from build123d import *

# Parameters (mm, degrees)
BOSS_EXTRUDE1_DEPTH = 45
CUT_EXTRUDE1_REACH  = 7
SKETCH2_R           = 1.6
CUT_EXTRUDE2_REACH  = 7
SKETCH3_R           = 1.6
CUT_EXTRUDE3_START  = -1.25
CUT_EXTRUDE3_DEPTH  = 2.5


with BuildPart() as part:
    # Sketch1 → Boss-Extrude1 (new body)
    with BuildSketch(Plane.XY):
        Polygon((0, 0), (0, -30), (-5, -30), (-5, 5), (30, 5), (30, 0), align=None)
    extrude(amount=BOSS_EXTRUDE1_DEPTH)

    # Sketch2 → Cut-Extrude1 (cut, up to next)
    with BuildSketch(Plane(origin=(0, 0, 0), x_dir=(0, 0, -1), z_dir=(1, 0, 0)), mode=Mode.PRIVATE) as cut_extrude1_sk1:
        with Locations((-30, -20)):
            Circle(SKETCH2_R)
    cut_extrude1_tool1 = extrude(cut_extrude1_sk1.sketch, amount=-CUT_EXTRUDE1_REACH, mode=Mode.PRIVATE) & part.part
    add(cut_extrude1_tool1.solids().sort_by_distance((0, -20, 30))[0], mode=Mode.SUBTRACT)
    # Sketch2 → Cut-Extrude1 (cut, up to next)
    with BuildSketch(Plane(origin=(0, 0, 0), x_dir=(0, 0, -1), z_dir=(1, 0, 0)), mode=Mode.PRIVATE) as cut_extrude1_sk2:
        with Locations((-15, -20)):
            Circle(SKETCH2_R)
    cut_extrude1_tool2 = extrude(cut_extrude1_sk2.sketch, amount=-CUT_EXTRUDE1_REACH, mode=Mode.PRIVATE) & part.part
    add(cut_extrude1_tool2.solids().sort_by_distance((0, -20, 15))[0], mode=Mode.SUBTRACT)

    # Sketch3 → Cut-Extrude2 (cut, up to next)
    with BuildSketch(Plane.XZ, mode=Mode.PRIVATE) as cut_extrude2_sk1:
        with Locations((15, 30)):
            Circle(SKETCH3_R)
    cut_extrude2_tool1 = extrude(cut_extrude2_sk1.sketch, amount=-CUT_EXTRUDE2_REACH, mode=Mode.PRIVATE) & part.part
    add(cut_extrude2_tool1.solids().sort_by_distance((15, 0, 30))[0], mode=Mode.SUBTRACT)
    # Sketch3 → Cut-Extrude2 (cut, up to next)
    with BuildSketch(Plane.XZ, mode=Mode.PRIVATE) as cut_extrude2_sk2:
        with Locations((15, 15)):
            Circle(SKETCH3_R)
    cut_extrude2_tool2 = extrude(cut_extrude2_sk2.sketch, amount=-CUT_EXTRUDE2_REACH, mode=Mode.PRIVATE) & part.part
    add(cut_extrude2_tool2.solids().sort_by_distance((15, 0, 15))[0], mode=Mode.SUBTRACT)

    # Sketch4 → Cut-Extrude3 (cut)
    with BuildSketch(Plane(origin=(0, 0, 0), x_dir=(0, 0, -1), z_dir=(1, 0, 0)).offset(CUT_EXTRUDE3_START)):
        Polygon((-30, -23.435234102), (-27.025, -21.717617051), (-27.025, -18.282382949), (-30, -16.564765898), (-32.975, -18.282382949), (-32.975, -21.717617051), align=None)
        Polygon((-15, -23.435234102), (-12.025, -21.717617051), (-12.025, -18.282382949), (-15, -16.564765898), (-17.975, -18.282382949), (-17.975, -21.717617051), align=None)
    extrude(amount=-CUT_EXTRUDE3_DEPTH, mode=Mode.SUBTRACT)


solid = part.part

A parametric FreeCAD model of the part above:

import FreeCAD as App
import Part
import Sketcher
Q = App.Units.Quantity

doc = App.newDocument("Part")
body = doc.addObject("PartDesign::Body", "Body")

# Sketch on XY plane
sketch1 = doc.addObject("Sketcher::SketchObject", "Sketch")
body.addObject(sketch1)
sketch1.AttachmentSupport = (doc.XY_Plane, [""])
sketch1.MapMode = "FlatFace"
sketch1.addGeometry([
    Part.LineSegment(App.Vector(0, -30, 0), App.Vector(0, 0, 0)),  # 0
    Part.LineSegment(App.Vector(0, 0, 0), App.Vector(30, 0, 0)),  # 1
    Part.LineSegment(App.Vector(30, 0, 0), App.Vector(30, 5, 0)),  # 2
    Part.LineSegment(App.Vector(30, 5, 0), App.Vector(-5, 5, 0)),  # 3
    Part.LineSegment(App.Vector(-5, 5, 0), App.Vector(-5, -30, 0)),  # 4
    Part.LineSegment(App.Vector(-5, -30, 0), App.Vector(0, -30, 0)),  # 5
], False)
sketch1.addConstraint([
    Sketcher.Constraint("Coincident", 0, 2, 1, 1),
    Sketcher.Constraint("Coincident", 1, 2, 2, 1),
    Sketcher.Constraint("Coincident", 2, 2, 3, 1),
    Sketcher.Constraint("Coincident", 3, 2, 4, 1),
    Sketcher.Constraint("Coincident", 4, 2, 5, 1),
    Sketcher.Constraint("Coincident", 5, 2, 0, 1),
    Sketcher.Constraint("Vertical", 0),
    Sketcher.Constraint("Horizontal", 1),
    Sketcher.Constraint("Vertical", 2),
    Sketcher.Constraint("Horizontal", 3),
    Sketcher.Constraint("Vertical", 4),
    Sketcher.Constraint("Horizontal", 5),
    Sketcher.Constraint("Coincident", 0, 2, -1, 1),
    Sketcher.Constraint("Equal", 1, 0),
    Sketcher.Constraint("Equal", 5, 2),
    Sketcher.Constraint("DistanceX", 1, 1, 1, 2, 30.0),
    Sketcher.Constraint("DistanceX", 3, 2, 3, 1, 35.0),
])
pad1 = doc.addObject("PartDesign::Pad", "Pad")
body.addObject(pad1)
pad1.Profile = sketch1
pad1.Length = 45

# Sketch on YZ plane
sketch2 = doc.addObject("Sketcher::SketchObject", "Sketch001")
body.addObject(sketch2)
sketch2.AttachmentSupport = (doc.YZ_Plane, [""])
sketch2.MapMode = "FlatFace"
sketch2.addGeometry(Part.Circle(App.Vector(-20, 30, 0), App.Vector(0, 0, 1), 1.6), False)
sketch2.addConstraint([
    Sketcher.Constraint("Diameter", 0, 3.2),
    Sketcher.Constraint("DistanceX", 0, 3, -1, 1, 20.0),
    Sketcher.Constraint("DistanceY", -1, 1, 0, 3, 30.0),
])
pocket1 = doc.addObject("PartDesign::Pocket", "Pocket")
body.addObject(pocket1)
pocket1.Profile = sketch2
pocket1.Type = "UpToFirst"

# Sketch on YZ plane
sketch3 = doc.addObject("Sketcher::SketchObject", "Sketch002")
body.addObject(sketch3)
sketch3.AttachmentSupport = (doc.YZ_Plane, [""])
sketch3.MapMode = "FlatFace"
sketch3.addGeometry(Part.Circle(App.Vector(-20, 15, 0), App.Vector(0, 0, 1), 1.6), False)
sketch3.addConstraint([
    Sketcher.Constraint("Diameter", 0, 3.2),
    Sketcher.Constraint("DistanceX", 0, 3, -1, 1, 20.0),
    Sketcher.Constraint("DistanceY", -1, 1, 0, 3, 15.0),
])
pocket2 = doc.addObject("PartDesign::Pocket", "Pocket001")
body.addObject(pocket2)
pocket2.Profile = sketch3
pocket2.Type = "UpToFirst"

# Sketch on XZ plane
sketch4 = doc.addObject("Sketcher::SketchObject", "Sketch003")
body.addObject(sketch4)
sketch4.AttachmentSupport = (doc.XZ_Plane, [""])
sketch4.MapMode = "FlatFace"
sketch4.addGeometry(Part.Circle(App.Vector(15, 30, 0), App.Vector(0, 0, 1), 1.6), False)
sketch4.addConstraint([
    Sketcher.Constraint("Diameter", 0, 3.2),
    Sketcher.Constraint("DistanceX", -1, 1, 0, 3, 15.0),
    Sketcher.Constraint("DistanceY", -1, 1, 0, 3, 30.0),
])
pocket3 = doc.addObject("PartDesign::Pocket", "Pocket002")
body.addObject(pocket3)
pocket3.Profile = sketch4
pocket3.Type = "UpToFirst"

# Sketch on XZ plane
sketch5 = doc.addObject("Sketcher::SketchObject", "Sketch004")
body.addObject(sketch5)
sketch5.AttachmentSupport = (doc.XZ_Plane, [""])
sketch5.MapMode = "FlatFace"
sketch5.addGeometry(Part.Circle(App.Vector(15, 15, 0), App.Vector(0, 0, 1), 1.6), False)
sketch5.addConstraint([
    Sketcher.Constraint("Diameter", 0, 3.2),
    Sketcher.Constraint("DistanceX", -1, 1, 0, 3, 15.0),
    Sketcher.Constraint("DistanceY", -1, 1, 0, 3, 15.0),
])
pocket4 = doc.addObject("PartDesign::Pocket", "Pocket003")
body.addObject(pocket4)
pocket4.Profile = sketch5
pocket4.Type = "UpToFirst"

# Sketch on YZ plane
sketch6 = doc.addObject("Sketcher::SketchObject", "Sketch005")
body.addObject(sketch6)
sketch6.AttachmentSupport = (doc.YZ_Plane, [""])
sketch6.MapMode = "FlatFace"
sketch6.AttachmentOffset = App.Placement(App.Vector(0, 0, -1.25), App.Rotation())
sketch6.addGeometry([
    Part.LineSegment(App.Vector(-23.4, 30, 0), App.Vector(-21.7, 27, 0)),  # 0
    Part.LineSegment(App.Vector(-21.7, 27, 0), App.Vector(-18.3, 27, 0)),  # 1
    Part.LineSegment(App.Vector(-18.3, 27, 0), App.Vector(-16.6, 30, 0)),  # 2
    Part.LineSegment(App.Vector(-16.6, 30, 0), App.Vector(-18.3, 33, 0)),  # 3
    Part.LineSegment(App.Vector(-18.3, 33, 0), App.Vector(-21.7, 33, 0)),  # 4
    Part.LineSegment(App.Vector(-21.7, 33, 0), App.Vector(-23.4, 30, 0)),  # 5
    Part.LineSegment(App.Vector(-23.4, 15, 0), App.Vector(-21.7, 12, 0)),  # 6
    Part.LineSegment(App.Vector(-21.7, 12, 0), App.Vector(-18.3, 12, 0)),  # 7
    Part.LineSegment(App.Vector(-18.3, 12, 0), App.Vector(-16.6, 15, 0)),  # 8
    Part.LineSegment(App.Vector(-16.6, 15, 0), App.Vector(-18.3, 18, 0)),  # 9
    Part.LineSegment(App.Vector(-18.3, 18, 0), App.Vector(-21.7, 18, 0)),  # 10
    Part.LineSegment(App.Vector(-21.7, 18, 0), App.Vector(-23.4, 15, 0)),  # 11
], False)
sketch6.addConstraint([
    Sketcher.Constraint("Coincident", 0, 2, 1, 1),
    Sketcher.Constraint("Coincident", 1, 2, 2, 1),
    Sketcher.Constraint("Coincident", 2, 2, 3, 1),
    Sketcher.Constraint("Coincident", 3, 2, 4, 1),
    Sketcher.Constraint("Coincident", 4, 2, 5, 1),
    Sketcher.Constraint("Coincident", 5, 2, 0, 1),
    Sketcher.Constraint("Coincident", 6, 2, 7, 1),
    Sketcher.Constraint("Coincident", 7, 2, 8, 1),
    Sketcher.Constraint("Coincident", 8, 2, 9, 1),
    Sketcher.Constraint("Coincident", 9, 2, 10, 1),
    Sketcher.Constraint("Coincident", 10, 2, 11, 1),
    Sketcher.Constraint("Coincident", 11, 2, 6, 1),
    Sketcher.Constraint("Horizontal", 1),
    Sketcher.Constraint("Horizontal", 4),
    Sketcher.Constraint("Horizontal", 7),
    Sketcher.Constraint("Horizontal", 10),
    Sketcher.Constraint("Parallel", 0, 3),
    Sketcher.Constraint("Parallel", 2, 5),
    Sketcher.Constraint("Parallel", 3, 6),
    Sketcher.Constraint("Parallel", 5, 8),
    Sketcher.Constraint("Parallel", 6, 9),
    Sketcher.Constraint("Parallel", 8, 11),
    Sketcher.Constraint("Horizontal", 2, 2, 5, 2),
    Sketcher.Constraint("Horizontal", 8, 2, 11, 2),
    Sketcher.Constraint("Vertical", 1, 2, 3, 2),
    Sketcher.Constraint("Vertical", 0, 2, 4, 2),
    Sketcher.Constraint("Vertical", 4, 2, 6, 2),
    Sketcher.Constraint("Vertical", 3, 2, 7, 2),
    Sketcher.Constraint("Vertical", 2, 2, 8, 2),
    Sketcher.Constraint("Vertical", 7, 2, 9, 2),
    Sketcher.Constraint("Angle", 0, Q("-60 deg")),
    Sketcher.Constraint("DistanceY", -1, 1, 2, 2, 30.0),
    Sketcher.Constraint("DistanceY", -1, 1, 8, 2, 15.0),
    Sketcher.Constraint("DistanceY", 1, 2, 3, 2, 5.95),
    Sketcher.Constraint("DistanceX", 1, 1, 1, 2, 3.435234),
    Sketcher.Constraint("DistanceX", 0, 2, -1, 1, 21.717617),
])
pocket5 = doc.addObject("PartDesign::Pocket", "Pocket004")
body.addObject(pocket5)
pocket5.Profile = sketch6
pocket5.Length = 2.5

doc.recompute()
